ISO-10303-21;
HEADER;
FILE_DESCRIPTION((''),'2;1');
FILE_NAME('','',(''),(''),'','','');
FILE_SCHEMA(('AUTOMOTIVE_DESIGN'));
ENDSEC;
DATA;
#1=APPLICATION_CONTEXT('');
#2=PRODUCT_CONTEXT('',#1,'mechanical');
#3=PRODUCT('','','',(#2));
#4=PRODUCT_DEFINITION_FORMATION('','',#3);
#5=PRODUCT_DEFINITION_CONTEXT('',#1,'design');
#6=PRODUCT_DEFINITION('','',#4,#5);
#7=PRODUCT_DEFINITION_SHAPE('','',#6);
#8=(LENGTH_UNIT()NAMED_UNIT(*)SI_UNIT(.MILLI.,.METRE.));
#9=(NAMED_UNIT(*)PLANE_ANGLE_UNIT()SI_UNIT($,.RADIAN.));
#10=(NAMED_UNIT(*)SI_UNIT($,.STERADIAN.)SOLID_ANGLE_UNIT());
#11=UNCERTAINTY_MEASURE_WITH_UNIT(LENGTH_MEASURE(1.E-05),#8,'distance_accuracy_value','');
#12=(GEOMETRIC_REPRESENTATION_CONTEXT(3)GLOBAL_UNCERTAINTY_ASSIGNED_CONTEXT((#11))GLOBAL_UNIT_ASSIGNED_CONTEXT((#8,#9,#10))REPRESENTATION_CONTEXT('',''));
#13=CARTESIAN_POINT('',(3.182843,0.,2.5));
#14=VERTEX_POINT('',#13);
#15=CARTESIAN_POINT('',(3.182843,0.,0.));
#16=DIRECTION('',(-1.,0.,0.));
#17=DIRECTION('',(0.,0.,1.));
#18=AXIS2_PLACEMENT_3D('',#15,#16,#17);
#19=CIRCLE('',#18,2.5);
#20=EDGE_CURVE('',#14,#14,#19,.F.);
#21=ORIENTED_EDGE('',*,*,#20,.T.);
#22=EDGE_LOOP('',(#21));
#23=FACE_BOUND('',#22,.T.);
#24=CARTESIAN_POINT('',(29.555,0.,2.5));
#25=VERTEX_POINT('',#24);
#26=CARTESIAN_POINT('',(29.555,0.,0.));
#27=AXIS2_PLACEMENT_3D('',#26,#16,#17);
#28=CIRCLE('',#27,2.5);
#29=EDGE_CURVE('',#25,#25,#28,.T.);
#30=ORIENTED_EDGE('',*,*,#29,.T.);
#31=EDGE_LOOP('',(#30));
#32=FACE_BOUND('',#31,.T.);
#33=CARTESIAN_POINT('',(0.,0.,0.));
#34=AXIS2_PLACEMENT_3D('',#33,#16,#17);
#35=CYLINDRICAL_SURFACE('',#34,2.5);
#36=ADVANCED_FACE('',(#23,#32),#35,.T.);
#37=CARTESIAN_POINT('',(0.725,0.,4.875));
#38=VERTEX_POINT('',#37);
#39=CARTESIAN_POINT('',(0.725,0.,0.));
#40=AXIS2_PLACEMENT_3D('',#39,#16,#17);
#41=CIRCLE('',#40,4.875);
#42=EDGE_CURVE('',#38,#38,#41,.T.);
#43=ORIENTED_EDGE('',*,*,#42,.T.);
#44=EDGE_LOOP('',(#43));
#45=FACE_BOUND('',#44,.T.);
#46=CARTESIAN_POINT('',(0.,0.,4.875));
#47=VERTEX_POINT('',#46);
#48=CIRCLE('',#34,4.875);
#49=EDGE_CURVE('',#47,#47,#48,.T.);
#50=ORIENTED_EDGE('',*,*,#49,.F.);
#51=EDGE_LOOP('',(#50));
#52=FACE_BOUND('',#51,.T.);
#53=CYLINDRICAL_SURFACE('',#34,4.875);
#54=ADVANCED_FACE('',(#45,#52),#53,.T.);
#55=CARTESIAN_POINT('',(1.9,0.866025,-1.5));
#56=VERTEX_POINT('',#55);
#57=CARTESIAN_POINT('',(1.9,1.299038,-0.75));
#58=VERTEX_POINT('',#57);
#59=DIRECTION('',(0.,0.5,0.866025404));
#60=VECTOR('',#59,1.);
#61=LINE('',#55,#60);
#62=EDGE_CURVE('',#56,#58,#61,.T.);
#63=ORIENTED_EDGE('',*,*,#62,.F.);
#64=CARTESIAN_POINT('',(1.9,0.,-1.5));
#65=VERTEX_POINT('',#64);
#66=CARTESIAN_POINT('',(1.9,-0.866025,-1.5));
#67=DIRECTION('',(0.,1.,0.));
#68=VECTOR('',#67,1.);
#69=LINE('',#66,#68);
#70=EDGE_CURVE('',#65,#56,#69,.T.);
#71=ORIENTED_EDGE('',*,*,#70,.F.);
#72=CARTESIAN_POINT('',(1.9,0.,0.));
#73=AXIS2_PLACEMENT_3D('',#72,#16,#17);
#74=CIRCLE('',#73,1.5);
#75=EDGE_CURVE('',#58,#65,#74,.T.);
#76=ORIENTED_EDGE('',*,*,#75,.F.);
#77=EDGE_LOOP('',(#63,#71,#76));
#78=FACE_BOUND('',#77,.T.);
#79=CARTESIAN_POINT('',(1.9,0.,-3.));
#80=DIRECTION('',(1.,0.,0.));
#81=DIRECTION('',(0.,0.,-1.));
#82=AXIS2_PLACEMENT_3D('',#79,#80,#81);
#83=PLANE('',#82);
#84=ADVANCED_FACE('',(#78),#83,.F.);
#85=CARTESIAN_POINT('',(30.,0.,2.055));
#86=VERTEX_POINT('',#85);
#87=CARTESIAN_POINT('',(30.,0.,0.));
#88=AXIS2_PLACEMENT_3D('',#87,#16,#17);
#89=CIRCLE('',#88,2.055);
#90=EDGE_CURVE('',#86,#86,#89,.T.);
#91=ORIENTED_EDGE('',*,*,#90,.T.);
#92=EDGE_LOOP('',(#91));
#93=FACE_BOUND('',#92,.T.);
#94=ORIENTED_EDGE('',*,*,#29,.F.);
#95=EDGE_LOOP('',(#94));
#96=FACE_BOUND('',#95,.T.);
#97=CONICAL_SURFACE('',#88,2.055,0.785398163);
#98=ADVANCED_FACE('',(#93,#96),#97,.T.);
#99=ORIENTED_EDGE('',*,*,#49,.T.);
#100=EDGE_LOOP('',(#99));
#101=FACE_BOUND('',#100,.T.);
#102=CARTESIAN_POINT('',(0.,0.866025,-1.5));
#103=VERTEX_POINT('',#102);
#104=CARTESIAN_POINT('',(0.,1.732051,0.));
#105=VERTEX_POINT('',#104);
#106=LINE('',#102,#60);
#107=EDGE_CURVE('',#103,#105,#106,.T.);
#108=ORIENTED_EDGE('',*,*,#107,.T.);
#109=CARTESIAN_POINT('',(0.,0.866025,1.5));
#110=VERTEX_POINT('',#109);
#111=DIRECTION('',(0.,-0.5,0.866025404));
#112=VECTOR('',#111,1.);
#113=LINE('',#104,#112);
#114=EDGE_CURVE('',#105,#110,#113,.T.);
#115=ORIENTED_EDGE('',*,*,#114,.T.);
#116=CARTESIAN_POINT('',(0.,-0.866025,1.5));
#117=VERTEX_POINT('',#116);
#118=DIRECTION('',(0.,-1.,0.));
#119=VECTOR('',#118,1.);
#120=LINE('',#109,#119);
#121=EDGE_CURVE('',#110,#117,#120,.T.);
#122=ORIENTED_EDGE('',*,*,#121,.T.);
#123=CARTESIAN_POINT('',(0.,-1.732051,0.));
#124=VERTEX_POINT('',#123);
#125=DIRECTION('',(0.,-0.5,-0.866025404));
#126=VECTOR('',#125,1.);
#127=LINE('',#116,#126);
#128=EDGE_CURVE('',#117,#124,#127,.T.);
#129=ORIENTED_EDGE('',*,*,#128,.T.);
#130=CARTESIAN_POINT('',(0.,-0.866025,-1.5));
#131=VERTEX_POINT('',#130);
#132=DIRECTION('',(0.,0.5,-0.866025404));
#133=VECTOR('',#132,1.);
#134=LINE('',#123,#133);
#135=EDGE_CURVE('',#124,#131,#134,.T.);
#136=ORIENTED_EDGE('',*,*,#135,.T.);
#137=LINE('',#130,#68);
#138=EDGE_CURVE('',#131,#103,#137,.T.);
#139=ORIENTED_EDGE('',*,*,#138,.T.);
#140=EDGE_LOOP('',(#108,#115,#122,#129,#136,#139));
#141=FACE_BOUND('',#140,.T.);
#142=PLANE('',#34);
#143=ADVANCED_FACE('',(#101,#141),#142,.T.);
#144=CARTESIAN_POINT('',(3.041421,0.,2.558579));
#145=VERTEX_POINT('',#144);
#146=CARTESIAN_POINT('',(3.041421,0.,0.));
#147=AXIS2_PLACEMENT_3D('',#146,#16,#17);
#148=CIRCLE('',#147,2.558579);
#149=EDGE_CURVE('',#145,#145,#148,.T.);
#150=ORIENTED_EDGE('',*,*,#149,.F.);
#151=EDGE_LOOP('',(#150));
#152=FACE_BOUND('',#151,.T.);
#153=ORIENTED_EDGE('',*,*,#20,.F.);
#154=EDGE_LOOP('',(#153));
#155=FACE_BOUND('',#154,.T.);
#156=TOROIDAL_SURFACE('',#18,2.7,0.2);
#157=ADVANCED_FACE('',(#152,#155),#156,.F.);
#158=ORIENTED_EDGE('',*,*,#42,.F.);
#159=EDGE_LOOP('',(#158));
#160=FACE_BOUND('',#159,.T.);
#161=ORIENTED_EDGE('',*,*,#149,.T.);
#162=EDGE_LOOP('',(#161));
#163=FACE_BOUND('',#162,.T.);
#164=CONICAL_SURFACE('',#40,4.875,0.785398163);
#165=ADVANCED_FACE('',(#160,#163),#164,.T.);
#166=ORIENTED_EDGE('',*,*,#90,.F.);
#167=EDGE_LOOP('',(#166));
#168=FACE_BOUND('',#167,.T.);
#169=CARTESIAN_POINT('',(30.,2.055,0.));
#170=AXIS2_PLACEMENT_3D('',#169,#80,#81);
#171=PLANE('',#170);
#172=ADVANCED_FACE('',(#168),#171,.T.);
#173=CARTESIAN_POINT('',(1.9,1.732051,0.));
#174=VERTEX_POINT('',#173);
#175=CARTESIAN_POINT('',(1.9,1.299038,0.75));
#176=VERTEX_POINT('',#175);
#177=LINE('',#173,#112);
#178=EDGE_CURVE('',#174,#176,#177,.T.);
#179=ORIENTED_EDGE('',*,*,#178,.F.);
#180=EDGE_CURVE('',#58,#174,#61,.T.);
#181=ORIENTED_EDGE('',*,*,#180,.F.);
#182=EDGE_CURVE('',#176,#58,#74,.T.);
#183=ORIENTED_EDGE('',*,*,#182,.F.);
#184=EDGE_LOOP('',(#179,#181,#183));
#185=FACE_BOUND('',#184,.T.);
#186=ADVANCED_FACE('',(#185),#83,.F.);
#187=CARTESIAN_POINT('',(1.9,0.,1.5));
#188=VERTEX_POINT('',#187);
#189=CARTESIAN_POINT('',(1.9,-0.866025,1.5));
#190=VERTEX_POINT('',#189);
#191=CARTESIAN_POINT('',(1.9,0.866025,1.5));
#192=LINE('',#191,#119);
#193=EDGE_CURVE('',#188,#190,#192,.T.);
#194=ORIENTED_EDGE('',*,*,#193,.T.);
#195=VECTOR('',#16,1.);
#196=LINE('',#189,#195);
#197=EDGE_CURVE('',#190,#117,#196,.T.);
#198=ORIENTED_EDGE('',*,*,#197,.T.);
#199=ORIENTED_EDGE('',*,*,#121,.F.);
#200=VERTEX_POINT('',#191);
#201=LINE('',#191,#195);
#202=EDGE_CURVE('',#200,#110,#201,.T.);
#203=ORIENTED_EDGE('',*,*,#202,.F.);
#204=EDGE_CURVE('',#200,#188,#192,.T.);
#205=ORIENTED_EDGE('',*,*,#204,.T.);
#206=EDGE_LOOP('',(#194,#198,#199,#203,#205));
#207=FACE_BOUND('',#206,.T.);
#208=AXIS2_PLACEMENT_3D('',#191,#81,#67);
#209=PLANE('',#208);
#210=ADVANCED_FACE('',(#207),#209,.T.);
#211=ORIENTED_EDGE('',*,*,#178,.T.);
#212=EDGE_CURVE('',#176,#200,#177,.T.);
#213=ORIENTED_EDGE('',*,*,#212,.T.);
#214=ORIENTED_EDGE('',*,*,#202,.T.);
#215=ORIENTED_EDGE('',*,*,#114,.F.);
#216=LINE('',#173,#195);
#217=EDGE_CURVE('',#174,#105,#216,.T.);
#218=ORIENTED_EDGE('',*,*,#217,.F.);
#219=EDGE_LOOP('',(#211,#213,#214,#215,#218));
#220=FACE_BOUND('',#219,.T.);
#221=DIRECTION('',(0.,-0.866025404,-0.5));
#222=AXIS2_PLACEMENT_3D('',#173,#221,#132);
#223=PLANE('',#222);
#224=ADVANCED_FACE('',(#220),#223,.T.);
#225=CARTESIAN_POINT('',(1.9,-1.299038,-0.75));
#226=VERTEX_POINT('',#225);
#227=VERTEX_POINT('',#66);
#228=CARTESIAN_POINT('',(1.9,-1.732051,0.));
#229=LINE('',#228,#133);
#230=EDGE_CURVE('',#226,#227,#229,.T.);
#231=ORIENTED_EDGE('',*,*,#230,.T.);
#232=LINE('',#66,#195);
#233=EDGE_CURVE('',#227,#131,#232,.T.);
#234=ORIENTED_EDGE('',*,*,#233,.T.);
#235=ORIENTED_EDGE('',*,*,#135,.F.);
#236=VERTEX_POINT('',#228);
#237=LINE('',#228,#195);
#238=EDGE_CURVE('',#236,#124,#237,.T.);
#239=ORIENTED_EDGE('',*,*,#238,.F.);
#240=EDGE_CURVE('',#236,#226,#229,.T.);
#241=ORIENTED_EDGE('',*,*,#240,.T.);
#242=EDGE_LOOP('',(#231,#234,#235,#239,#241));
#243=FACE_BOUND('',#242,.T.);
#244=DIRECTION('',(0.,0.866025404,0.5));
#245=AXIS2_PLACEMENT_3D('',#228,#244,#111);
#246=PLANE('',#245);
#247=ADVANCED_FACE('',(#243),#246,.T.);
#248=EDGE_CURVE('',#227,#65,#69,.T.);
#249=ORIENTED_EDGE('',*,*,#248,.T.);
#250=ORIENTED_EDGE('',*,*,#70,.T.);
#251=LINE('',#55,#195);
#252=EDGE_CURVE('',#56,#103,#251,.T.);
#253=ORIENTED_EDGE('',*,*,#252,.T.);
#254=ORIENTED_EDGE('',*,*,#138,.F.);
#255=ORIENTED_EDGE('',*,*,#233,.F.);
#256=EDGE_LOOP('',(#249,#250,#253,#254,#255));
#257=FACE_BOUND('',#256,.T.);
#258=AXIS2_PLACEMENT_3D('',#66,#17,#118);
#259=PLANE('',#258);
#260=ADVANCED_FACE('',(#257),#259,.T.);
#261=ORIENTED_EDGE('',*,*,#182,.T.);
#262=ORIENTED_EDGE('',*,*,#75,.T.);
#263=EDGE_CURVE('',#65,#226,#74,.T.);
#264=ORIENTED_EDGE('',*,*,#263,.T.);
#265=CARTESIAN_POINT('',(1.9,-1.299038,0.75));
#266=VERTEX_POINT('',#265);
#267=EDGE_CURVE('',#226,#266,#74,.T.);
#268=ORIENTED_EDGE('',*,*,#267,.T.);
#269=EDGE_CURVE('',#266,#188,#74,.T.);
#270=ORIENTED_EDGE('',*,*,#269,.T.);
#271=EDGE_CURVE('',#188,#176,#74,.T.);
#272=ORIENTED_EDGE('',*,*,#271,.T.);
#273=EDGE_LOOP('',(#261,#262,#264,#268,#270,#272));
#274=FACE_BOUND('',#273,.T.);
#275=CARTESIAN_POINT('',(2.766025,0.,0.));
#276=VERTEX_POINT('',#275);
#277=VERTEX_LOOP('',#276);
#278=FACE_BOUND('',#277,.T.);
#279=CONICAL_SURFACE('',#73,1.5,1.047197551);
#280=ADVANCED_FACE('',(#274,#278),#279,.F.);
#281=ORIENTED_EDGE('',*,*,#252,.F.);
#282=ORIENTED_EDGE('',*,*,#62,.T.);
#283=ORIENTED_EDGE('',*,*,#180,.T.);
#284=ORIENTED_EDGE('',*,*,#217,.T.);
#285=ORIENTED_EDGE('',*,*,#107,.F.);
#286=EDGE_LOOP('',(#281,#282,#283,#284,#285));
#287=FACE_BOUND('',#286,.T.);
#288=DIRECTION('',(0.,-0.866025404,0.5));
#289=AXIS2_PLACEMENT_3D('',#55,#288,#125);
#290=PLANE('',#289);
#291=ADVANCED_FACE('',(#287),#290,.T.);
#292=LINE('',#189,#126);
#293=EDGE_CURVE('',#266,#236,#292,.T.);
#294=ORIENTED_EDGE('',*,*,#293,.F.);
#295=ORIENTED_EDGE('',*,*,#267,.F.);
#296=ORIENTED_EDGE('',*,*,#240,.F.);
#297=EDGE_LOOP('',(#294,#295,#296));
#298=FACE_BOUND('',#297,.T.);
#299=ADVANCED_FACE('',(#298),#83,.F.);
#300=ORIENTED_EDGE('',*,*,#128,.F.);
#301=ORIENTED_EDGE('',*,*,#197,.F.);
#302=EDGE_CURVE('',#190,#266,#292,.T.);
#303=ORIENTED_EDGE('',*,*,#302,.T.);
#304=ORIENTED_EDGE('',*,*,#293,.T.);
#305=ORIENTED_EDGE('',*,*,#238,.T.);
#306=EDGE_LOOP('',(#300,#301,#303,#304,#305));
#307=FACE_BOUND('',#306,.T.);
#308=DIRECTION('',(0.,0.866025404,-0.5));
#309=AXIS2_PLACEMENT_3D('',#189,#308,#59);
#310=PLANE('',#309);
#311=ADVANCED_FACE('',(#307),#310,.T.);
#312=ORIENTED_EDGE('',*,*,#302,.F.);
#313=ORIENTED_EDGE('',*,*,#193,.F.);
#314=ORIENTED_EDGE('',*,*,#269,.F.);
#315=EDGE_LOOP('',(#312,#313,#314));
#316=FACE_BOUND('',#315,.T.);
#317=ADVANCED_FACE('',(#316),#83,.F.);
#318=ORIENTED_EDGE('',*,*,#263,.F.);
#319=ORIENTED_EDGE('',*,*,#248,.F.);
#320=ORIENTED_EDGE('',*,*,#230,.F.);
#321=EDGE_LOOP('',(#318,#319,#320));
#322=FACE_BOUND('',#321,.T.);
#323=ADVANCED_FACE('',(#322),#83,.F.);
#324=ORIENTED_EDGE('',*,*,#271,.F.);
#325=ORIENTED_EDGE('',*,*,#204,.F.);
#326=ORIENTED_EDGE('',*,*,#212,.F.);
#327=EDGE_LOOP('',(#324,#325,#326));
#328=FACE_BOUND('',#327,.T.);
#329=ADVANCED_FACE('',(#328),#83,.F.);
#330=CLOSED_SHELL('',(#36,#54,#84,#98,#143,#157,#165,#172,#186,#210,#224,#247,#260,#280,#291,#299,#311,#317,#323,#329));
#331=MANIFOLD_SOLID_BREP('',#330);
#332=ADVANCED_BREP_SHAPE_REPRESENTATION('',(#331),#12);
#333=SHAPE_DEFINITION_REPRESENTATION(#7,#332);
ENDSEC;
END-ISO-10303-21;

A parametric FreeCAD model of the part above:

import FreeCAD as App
import Part
import Sketcher
Q = App.Units.Quantity


def edges_at(feature, points):
    """Names of the edges that pass closest to the given points."""
    edges = feature.Shape.Edges
    near = lambda p: min(range(len(edges)), key=lambda i: edges[i].distToShape(Part.Vertex(*p))[0])
    return sorted({f"Edge{near(p) + 1}" for p in points})

doc = App.newDocument("Part")
body = doc.addObject("PartDesign::Body", "Body")

# Sketch on XY plane
sketch1 = body.newObject("Sketcher::SketchObject", "Sketch")
sketch1.AttachmentSupport = (doc.getObject("XY_Plane"), [""])
sketch1.MapMode = "FlatFace"
sketch1.addGeometry([
    Part.LineSegment(App.Vector(0, 4.9, 0), App.Vector(0, 0, 0)),  # 0
    Part.LineSegment(App.Vector(0, 0, 0), App.Vector(30, 0, 0)),  # 1
    Part.LineSegment(App.Vector(30, 0, 0), App.Vector(30, 2.1, 0)),  # 2
    Part.LineSegment(App.Vector(30, 2.1, 0), App.Vector(29.6, 2.5, 0)),  # 3
    Part.LineSegment(App.Vector(29.6, 2.5, 0), App.Vector(3.1, 2.5, 0)),  # 4
    Part.LineSegment(App.Vector(3.1, 2.5, 0), App.Vector(0.7, 4.9, 0)),  # 5
    Part.LineSegment(App.Vector(0.7, 4.9, 0), App.Vector(0, 4.9, 0)),  # 6
], False)
sketch1.addConstraint([
    Sketcher.Constraint("Coincident", 0, 2, 1, 1),
    Sketcher.Constraint("Coincident", 1, 2, 2, 1),
    Sketcher.Constraint("Coincident", 2, 2, 3, 1),
    Sketcher.Constraint("Coincident", 3, 2, 4, 1),
    Sketcher.Constraint("Coincident", 4, 2, 5, 1),
    Sketcher.Constraint("Coincident", 5, 2, 6, 1),
    Sketcher.Constraint("Coincident", 6, 2, 0, 1),
    Sketcher.Constraint("Vertical", 0),
    Sketcher.Constraint("Horizontal", 1),
    Sketcher.Constraint("Vertical", 2),
    Sketcher.Constraint("Horizontal", 4),
    Sketcher.Constraint("Horizontal", 6),
    Sketcher.Constraint("Coincident", 0, 2, -1, 1),
    Sketcher.Constraint("Parallel", 3, 5),
    Sketcher.Constraint("DistanceX", 1, 1, 1, 2, Q("30 mm")),
    Sketcher.Constraint("Angle", 3, Q("135 deg")),
    Sketcher.Constraint("DistanceY", -1, 1, 3, 2, Q("2.5 mm")),
    Sketcher.Constraint("DistanceX", -1, 1, 4, 2, Q("3.1 mm")),
    Sketcher.Constraint("DistanceX", 4, 2, 4, 1, Q("26.455 mm")),
    Sketcher.Constraint("DistanceX", 6, 2, 6, 1, Q("0.725 mm")),
])
revolution = body.newObject("PartDesign::Revolution", "Revolution")
revolution.Profile = sketch1
revolution.ReferenceAxis = (sketch1, ["H_Axis"])
revolution.Angle = 360
doc.recompute()

fillet = body.newObject("PartDesign::Fillet", "Fillet")
fillet.Base = (revolution, edges_at(revolution, [(3.1, 0, -2.5)]))
fillet.Radius = 0.2

# Sketch on XY plane
sketch2 = body.newObject("Sketcher::SketchObject", "Sketch001")
sketch2.AttachmentSupport = (doc.getObject("XY_Plane"), [""])
sketch2.MapMode = "FlatFace"
sketch2.addGeometry([
    Part.LineSegment(App.Vector(1.9, 1.5, 0), App.Vector(0, 1.5, 0)),
    Part.LineSegment(App.Vector(0, 1.5, 0), App.Vector(0, 0, 0)),
    Part.LineSegment(App.Vector(0, 0, 0), App.Vector(2.8, 0, 0)),
    Part.LineSegment(App.Vector(2.8, 0, 0), App.Vector(1.9, 1.5, 0)),
], False)
sketch2.addConstraint([
    Sketcher.Constraint("Coincident", 0, 2, 1, 1),
    Sketcher.Constraint("Coincident", 1, 2, 2, 1),
    Sketcher.Constraint("Coincident", 2, 2, 3, 1),
    Sketcher.Constraint("Coincident", 3, 2, 0, 1),
    Sketcher.Constraint("Horizontal", 0),
    Sketcher.Constraint("Vertical", 1),
    Sketcher.Constraint("Horizontal", 2),
    Sketcher.Constraint("Coincident", 1, 2, -1, 1),
    Sketcher.Constraint("Angle", 3, Q("120 deg")),
    Sketcher.Constraint("DistanceX", 0, 2, 0, 1, Q("1.9 mm")),
    Sketcher.Constraint("DistanceY", 1, 2, 1, 1, Q("1.5 mm")),
])
groove = body.newObject("PartDesign::Groove", "Groove")
groove.Profile = sketch2
groove.ReferenceAxis = (sketch2, ["H_Axis"])
groove.Angle = 360

# Sketch on YZ plane
sketch3 = body.newObject("Sketcher::SketchObject", "Sketch002")
sketch3.AttachmentSupport = (doc.getObject("YZ_Plane"), [""])
sketch3.MapMode = "FlatFace"
sketch3.addGeometry([
    Part.LineSegment(App.Vector(0.9, -1.5, 0), App.Vector(-0.9, -1.5, 0)),  # 0
    Part.LineSegment(App.Vector(-0.9, -1.5, 0), App.Vector(-1.7, 0, 0)),  # 1
    Part.LineSegment(App.Vector(-1.7, 0, 0), App.Vector(-0.9, 1.5, 0)),  # 2
    Part.LineSegment(App.Vector(-0.9, 1.5, 0), App.Vector(0.9, 1.5, 0)),  # 3
    Part.LineSegment(App.Vector(0.9, 1.5, 0), App.Vector(1.7, 0, 0)),  # 4
    Part.LineSegment(App.Vector(1.7, 0, 0), App.Vector(0.9, -1.5, 0)),  # 5
], False)
sketch3.addConstraint([
    Sketcher.Constraint("Coincident", 0, 2, 1, 1),
    Sketcher.Constraint("Coincident", 1, 2, 2, 1),
    Sketcher.Constraint("Coincident", 2, 2, 3, 1),
    Sketcher.Constraint("Coincident", 3, 2, 4, 1),
    Sketcher.Constraint("Coincident", 4, 2, 5, 1),
    Sketcher.Constraint("Coincident", 5, 2, 0, 1),
    Sketcher.Constraint("Horizontal", 0),
    Sketcher.Constraint("Horizontal", 3),
    Sketcher.Constraint("Symmetric", 0, 2, 3, 2, -1, 1),
    Sketcher.Constraint("Symmetric", 1, 2, 4, 2, -1, 1),
    Sketcher.Constraint("PointOnObject", 1, 2, -1),
    Sketcher.Constraint("Parallel", 2, 5),
    Sketcher.Constraint("Vertical", 0, 2, 2, 2),
    Sketcher.Constraint("Angle", 1, Q("120 deg")),
    Sketcher.Constraint("DistanceY", 0, 2, 2, 2, Q("3 mm")),
    Sketcher.Constraint("DistanceX", 0, 2, 0, 1, Q("1.732051 mm")),
])
pocket1 = body.newObject("PartDesign::Pocket", "Pocket")
pocket1.Profile = sketch3
pocket1.Length = 1.9
pocket1.Reversed = True

doc.recompute()
